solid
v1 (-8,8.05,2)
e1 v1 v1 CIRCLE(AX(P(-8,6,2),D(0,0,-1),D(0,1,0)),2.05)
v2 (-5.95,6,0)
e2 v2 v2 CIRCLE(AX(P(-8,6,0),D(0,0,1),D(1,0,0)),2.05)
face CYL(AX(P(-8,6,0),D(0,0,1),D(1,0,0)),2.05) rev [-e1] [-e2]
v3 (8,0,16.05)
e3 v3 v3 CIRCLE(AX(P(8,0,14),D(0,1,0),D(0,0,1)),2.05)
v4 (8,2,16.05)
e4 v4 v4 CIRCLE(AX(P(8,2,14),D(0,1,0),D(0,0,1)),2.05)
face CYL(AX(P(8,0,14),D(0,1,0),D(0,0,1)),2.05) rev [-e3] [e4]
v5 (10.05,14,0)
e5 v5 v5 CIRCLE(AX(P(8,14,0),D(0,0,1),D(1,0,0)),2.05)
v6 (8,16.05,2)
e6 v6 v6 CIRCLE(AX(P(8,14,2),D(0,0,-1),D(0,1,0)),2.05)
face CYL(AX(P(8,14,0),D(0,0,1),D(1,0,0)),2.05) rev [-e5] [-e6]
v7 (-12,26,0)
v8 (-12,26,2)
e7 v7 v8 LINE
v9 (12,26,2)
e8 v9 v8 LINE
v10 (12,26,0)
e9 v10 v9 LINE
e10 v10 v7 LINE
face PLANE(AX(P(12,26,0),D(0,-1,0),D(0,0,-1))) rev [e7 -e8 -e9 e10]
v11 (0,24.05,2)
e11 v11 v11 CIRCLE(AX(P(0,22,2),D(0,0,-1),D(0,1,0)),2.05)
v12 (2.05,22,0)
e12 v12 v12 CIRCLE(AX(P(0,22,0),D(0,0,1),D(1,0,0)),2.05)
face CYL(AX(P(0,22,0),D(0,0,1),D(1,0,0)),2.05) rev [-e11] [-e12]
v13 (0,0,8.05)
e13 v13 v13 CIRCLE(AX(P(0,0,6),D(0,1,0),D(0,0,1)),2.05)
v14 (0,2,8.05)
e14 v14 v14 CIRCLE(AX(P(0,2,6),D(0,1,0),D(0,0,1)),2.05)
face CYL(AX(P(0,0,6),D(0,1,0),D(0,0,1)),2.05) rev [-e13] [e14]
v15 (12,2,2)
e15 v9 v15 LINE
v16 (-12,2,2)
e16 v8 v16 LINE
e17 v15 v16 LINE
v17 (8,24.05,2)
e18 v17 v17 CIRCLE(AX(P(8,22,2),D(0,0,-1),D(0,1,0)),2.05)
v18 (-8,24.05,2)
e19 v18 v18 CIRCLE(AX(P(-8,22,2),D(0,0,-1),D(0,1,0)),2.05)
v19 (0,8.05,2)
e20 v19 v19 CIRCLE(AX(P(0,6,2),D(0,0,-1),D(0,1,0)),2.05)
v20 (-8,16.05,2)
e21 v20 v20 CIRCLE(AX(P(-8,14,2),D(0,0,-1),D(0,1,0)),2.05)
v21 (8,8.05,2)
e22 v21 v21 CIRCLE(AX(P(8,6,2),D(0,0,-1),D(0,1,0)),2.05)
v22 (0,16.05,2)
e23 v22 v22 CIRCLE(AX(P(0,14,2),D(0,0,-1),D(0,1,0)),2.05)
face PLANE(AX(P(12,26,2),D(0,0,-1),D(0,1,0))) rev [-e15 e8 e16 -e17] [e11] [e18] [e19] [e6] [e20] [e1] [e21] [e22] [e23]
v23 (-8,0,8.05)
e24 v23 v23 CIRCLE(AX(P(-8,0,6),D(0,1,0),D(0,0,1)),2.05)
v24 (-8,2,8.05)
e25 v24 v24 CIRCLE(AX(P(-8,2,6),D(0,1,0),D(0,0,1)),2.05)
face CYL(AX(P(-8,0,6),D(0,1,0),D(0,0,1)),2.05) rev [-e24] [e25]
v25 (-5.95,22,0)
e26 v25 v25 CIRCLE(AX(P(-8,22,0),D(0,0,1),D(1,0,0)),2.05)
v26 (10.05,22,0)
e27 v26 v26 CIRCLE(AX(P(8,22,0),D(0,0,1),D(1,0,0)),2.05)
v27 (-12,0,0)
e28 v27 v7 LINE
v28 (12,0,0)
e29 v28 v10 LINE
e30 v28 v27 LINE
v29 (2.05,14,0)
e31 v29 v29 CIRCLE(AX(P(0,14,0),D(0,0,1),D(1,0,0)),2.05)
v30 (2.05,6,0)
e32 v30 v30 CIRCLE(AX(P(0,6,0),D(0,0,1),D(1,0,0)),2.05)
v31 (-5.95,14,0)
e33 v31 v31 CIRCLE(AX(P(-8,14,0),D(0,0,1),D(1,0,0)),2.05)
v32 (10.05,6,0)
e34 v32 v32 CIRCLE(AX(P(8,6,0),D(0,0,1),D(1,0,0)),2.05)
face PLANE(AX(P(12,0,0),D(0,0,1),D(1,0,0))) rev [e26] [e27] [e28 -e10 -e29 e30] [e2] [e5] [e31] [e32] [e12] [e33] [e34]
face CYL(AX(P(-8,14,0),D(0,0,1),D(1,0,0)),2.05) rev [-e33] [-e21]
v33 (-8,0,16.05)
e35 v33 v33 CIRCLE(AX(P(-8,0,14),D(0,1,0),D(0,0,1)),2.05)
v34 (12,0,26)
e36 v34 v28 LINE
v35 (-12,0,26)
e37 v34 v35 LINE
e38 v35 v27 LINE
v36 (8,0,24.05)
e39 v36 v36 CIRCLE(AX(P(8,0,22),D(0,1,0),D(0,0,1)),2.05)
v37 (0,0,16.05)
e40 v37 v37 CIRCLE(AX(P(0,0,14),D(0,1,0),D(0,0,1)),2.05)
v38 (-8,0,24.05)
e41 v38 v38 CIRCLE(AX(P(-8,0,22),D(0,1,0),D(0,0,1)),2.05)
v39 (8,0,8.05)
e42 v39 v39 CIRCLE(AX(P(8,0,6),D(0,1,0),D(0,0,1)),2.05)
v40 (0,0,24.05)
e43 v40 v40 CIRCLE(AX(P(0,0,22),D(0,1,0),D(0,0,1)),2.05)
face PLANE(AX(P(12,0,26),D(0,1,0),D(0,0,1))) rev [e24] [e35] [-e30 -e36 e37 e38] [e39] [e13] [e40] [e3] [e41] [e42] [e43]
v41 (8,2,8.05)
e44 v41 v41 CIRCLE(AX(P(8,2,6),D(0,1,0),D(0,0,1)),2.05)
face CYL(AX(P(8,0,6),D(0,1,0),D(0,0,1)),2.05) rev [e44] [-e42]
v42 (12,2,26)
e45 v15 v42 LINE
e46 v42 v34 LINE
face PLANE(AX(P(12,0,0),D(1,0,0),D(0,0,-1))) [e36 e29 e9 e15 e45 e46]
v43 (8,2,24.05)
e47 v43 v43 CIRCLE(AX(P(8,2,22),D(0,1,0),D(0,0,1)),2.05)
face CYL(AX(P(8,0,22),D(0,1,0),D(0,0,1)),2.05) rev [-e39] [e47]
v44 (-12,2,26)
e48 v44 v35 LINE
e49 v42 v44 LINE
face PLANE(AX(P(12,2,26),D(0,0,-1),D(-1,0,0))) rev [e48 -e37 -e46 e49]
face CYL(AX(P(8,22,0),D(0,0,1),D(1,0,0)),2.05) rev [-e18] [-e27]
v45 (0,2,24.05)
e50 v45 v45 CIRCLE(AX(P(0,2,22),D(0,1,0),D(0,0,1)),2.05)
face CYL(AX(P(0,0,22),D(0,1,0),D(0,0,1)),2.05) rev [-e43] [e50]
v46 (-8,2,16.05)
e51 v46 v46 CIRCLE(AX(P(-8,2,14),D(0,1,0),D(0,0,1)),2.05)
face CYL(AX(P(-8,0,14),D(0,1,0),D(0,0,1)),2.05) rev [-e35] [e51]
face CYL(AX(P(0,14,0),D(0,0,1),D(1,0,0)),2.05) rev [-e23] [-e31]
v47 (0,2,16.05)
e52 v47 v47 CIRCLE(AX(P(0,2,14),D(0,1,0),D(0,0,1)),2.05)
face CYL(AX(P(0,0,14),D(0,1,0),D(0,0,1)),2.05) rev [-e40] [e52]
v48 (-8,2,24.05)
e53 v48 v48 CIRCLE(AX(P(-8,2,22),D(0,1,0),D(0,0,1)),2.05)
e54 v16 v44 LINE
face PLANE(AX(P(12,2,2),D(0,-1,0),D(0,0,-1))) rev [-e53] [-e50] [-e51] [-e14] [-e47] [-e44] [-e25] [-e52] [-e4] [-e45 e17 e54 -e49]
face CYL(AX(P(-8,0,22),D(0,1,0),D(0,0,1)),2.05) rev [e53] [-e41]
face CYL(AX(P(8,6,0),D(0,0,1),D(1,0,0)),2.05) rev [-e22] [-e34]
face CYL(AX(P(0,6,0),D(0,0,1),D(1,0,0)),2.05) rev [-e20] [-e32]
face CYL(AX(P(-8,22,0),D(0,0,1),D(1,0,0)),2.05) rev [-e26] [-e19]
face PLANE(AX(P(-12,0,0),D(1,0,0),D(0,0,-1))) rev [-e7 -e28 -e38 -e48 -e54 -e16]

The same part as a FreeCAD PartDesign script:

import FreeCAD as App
import Part
import Sketcher

V = App.Vector


def add_polygon(sketch, points):
    """Adds a closed chain of lines whose ends are joined by coincident constraints."""
    first, n = sketch.GeometryCount, len(points)
    for a, b in zip(points, points[1:] + points[:1]):
        sketch.addGeometry(Part.LineSegment(App.Vector(*a, 0), App.Vector(*b, 0)), False)
    for i in range(n):
        sketch.addConstraint(Sketcher.Constraint("Coincident", first + i, 2, first + (i + 1) % n, 1))

doc = App.newDocument("Part")
body = doc.addObject("PartDesign::Body", "Body")

# Sketch on YZ plane
sketch1 = body.newObject("Sketcher::SketchObject", "Sketch")
sketch1.AttachmentSupport = (doc.getObject("YZ_Plane"), [""])
sketch1.MapMode = "FlatFace"
add_polygon(sketch1, [(0, 0), (26, 0), (26, 2), (2, 2), (2, 26), (0, 26)])  # lines 0-5
sketch1.addConstraint([
    Sketcher.Constraint("Horizontal", 0),
    Sketcher.Constraint("Vertical", 1),
    Sketcher.Constraint("Horizontal", 2),
    Sketcher.Constraint("Vertical", 3),
    Sketcher.Constraint("Horizontal", 4),
    Sketcher.Constraint("Vertical", 5),
    Sketcher.Constraint("Coincident", 5, 2, -1, 1),
    Sketcher.Constraint("Equal", 4, 1),
    Sketcher.Constraint("Equal", 2, 3),
    Sketcher.Constraint("DistanceX", 0, 1, 0, 2, 26.0),
    Sketcher.Constraint("DistanceX", 2, 2, 2, 1, 24.0),
])
pad1 = body.newObject("PartDesign::Pad", "Pad")
pad1.Profile = sketch1
pad1.Length = 24
pad1.Midplane = True

# Sketch on XY plane
sketch2 = body.newObject("Sketcher::SketchObject", "Sketch001")
sketch2.AttachmentSupport = (doc.getObject("XY_Plane"), [""])
sketch2.MapMode = "FlatFace"
sketch2.AttachmentOffset = App.Placement(V(0, 0, 2), App.Rotation())
sketch2.addGeometry([
    Part.Circle(V(-8, 22, 0), V(0, 0, 1), 2),  # 0
    Part.Circle(V(0, 22, 0), V(0, 0, 1), 2),  # 1
    Part.Circle(V(8, 22, 0), V(0, 0, 1), 2),  # 2
    Part.Circle(V(0, 14, 0), V(0, 0, 1), 2),  # 3
    Part.Circle(V(8, 14, 0), V(0, 0, 1), 2),  # 4
    Part.Circle(V(0, 6, 0), V(0, 0, 1), 2),  # 5
    Part.Circle(V(8, 6, 0), V(0, 0, 1), 2),  # 6
    Part.Circle(V(-8, 14, 0), V(0, 0, 1), 2),  # 7
    Part.Circle(V(-8, 6, 0), V(0, 0, 1), 2),  # 8
], False)
sketch2.addConstraint([
    Sketcher.Constraint("Equal", 0, 1),
    Sketcher.Constraint("Equal", 1, 2),
    Sketcher.Constraint("Equal", 2, 3),
    Sketcher.Constraint("Equal", 3, 4),
    Sketcher.Constraint("Equal", 4, 5),
    Sketcher.Constraint("Equal", 5, 6),
    Sketcher.Constraint("Equal", 6, 7),
    Sketcher.Constraint("Equal", 7, 8),
    Sketcher.Constraint("Symmetric", 0, 3, 2, 3, -2),
    Sketcher.Constraint("Symmetric", 4, 3, 7, 3, -2),
    Sketcher.Constraint("Symmetric", 6, 3, 8, 3, -2),
    Sketcher.Constraint("PointOnObject", 1, 3, -2),
    Sketcher.Constraint("PointOnObject", 3, 3, -2),
    Sketcher.Constraint("PointOnObject", 5, 3, -2),
    Sketcher.Constraint("Horizontal", 0, 3, 1, 3),
    Sketcher.Constraint("Horizontal", 3, 3, 4, 3),
    Sketcher.Constraint("Horizontal", 5, 3, 6, 3),
    Sketcher.Constraint("Vertical", 2, 3, 4, 3),
    Sketcher.Constraint("Vertical", 4, 3, 6, 3),
    Sketcher.Constraint("Diameter", 0, 4.1),
    Sketcher.Constraint("DistanceX", 0, 3, -1, 1, 8.0),
    Sketcher.Constraint("DistanceY", -1, 1, 0, 3, 22.0),
    Sketcher.Constraint("DistanceY", -1, 1, 3, 3, 14.0),
    Sketcher.Constraint("DistanceY", -1, 1, 5, 3, 6.0),
])
pocket1 = body.newObject("PartDesign::Pocket", "Pocket")
pocket1.Profile = sketch2
pocket1.Type = "ThroughAll"
pocket1.Midplane = True

# Sketch on XZ plane
sketch3 = body.newObject("Sketcher::SketchObject", "Sketch002")
sketch3.AttachmentSupport = (doc.getObject("XZ_Plane"), [""])
sketch3.MapMode = "FlatFace"
sketch3.AttachmentOffset = App.Placement(V(0, 0, -2), App.Rotation())
sketch3.addGeometry([
    Part.Circle(V(-8, 22, 0), V(0, 0, 1), 2),  # 0
    Part.Circle(V(0, 22, 0), V(0, 0, 1), 2),  # 1
    Part.Circle(V(8, 22, 0), V(0, 0, 1), 2),  # 2
    Part.Circle(V(0, 14, 0), V(0, 0, 1), 2),  # 3
    Part.Circle(V(8, 14, 0), V(0, 0, 1), 2),  # 4
    Part.Circle(V(0, 6, 0), V(0, 0, 1), 2),  # 5
    Part.Circle(V(8, 6, 0), V(0, 0, 1), 2),  # 6
    Part.Circle(V(-8, 14, 0), V(0, 0, 1), 2),  # 7
    Part.Circle(V(-8, 6, 0), V(0, 0, 1), 2),  # 8
], False)
sketch3.addConstraint([
    Sketcher.Constraint("Equal", 0, 1),
    Sketcher.Constraint("Equal", 1, 2),
    Sketcher.Constraint("Equal", 2, 3),
    Sketcher.Constraint("Equal", 3, 4),
    Sketcher.Constraint("Equal", 4, 5),
    Sketcher.Constraint("Equal", 5, 6),
    Sketcher.Constraint("Equal", 6, 7),
    Sketcher.Constraint("Equal", 7, 8),
    Sketcher.Constraint("Symmetric", 0, 3, 2, 3, -2),
    Sketcher.Constraint("Symmetric", 4, 3, 7, 3, -2),
    Sketcher.Constraint("Symmetric", 6, 3, 8, 3, -2),
    Sketcher.Constraint("PointOnObject", 1, 3, -2),
    Sketcher.Constraint("PointOnObject", 3, 3, -2),
    Sketcher.Constraint("PointOnObject", 5, 3, -2),
    Sketcher.Constraint("Horizontal", 0, 3, 1, 3),
    Sketcher.Constraint("Horizontal", 3, 3, 4, 3),
    Sketcher.Constraint("Horizontal", 5, 3, 6, 3),
    Sketcher.Constraint("Vertical", 2, 3, 4, 3),
    Sketcher.Constraint("Vertical", 4, 3, 6, 3),
    Sketcher.Constraint("Diameter", 0, 4.1),
    Sketcher.Constraint("DistanceX", 0, 3, -1, 1, 8.0),
    Sketcher.Constraint("DistanceY", -1, 1, 0, 3, 22.0),
    Sketcher.Constraint("DistanceY", -1, 1, 3, 3, 14.0),
    Sketcher.Constraint("DistanceY", -1, 1, 5, 3, 6.0),
])
pocket2 = body.newObject("PartDesign::Pocket", "Pocket001")
pocket2.Profile = sketch3
pocket2.Type = "ThroughAll"
pocket2.Reversed = True

doc.recompute()
